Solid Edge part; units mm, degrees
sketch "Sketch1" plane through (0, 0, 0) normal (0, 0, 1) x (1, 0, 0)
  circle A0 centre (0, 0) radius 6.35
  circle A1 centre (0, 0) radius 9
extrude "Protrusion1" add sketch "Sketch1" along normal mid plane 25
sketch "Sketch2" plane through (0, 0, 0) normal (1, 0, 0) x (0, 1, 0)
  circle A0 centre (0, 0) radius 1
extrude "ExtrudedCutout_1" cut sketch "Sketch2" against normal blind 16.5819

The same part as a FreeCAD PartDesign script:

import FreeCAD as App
import Part
import Sketcher

doc = App.newDocument("Part")
body = doc.addObject("PartDesign::Body", "Body")

# Sketch on XY plane
sketch1 = doc.addObject("Sketcher::SketchObject", "Sketch")
body.addObject(sketch1)
sketch1.AttachmentSupport = (doc.XY_Plane, [""])
sketch1.MapMode = "FlatFace"
sketch1.addGeometry([
    Part.Circle(App.Vector(0, 0, 0), App.Vector(0, 0, 1), 9),
    Part.Circle(App.Vector(0, 0, 0), App.Vector(0, 0, 1), 6),
], False)
sketch1.addConstraint([
    Sketcher.Constraint("Coincident", 0, 3, -1, 1),
    Sketcher.Constraint("Coincident", 1, 3, -1, 1),
    Sketcher.Constraint("Diameter", 0, 18.0),
    Sketcher.Constraint("Diameter", 1, 12.7),
])
pad1 = doc.addObject("PartDesign::Pad", "Pad")
body.addObject(pad1)
pad1.Profile = sketch1
pad1.Length = 25
pad1.Midplane = True

# Sketch on YZ plane
sketch2 = doc.addObject("Sketcher::SketchObject", "Sketch001")
body.addObject(sketch2)
sketch2.AttachmentSupport = (doc.YZ_Plane, [""])
sketch2.MapMode = "FlatFace"
sketch2.addGeometry(Part.Circle(App.Vector(0, 0, 0), App.Vector(0, 0, 1), 1), False)
sketch2.addConstraint([
    Sketcher.Constraint("Coincident", 0, 3, -1, 1),
    Sketcher.Constraint("Diameter", 0, 2.0),
])
pocket1 = doc.addObject("PartDesign::Pocket", "Pocket")
body.addObject(pocket1)
pocket1.Profile = sketch2
pocket1.Length = 16.5819

doc.recompute()
